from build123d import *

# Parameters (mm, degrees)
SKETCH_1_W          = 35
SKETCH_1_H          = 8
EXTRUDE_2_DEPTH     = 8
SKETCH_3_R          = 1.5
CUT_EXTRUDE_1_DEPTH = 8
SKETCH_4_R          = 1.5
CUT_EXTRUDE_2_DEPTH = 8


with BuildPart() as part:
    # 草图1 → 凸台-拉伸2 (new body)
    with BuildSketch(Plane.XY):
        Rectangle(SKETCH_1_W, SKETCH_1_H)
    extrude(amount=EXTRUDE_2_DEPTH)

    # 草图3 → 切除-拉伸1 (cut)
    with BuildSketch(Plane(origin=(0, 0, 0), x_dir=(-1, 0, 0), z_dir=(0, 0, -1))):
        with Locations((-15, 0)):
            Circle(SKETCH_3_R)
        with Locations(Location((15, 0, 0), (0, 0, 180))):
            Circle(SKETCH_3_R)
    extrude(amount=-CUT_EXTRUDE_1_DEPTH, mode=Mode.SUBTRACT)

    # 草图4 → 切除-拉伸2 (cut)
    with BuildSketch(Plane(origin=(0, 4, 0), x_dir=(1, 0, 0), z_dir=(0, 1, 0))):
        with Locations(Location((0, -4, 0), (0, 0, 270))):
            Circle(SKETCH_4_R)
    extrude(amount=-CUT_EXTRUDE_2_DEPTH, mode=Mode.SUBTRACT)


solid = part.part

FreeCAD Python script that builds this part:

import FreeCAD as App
import Part
import Sketcher


def add_polygon(sketch, points):
    """Adds a closed chain of lines whose ends are joined by coincident constraints."""
    first, n = sketch.GeometryCount, len(points)
    for a, b in zip(points, points[1:] + points[:1]):
        sketch.addGeometry(Part.LineSegment(App.Vector(*a, 0), App.Vector(*b, 0)), False)
    for i in range(n):
        sketch.addConstraint(Sketcher.Constraint("Coincident", first + i, 2, first + (i + 1) % n, 1))

doc = App.newDocument("Part")
body = doc.addObject("PartDesign::Body", "Body")

sketch1 = body.newObject("Sketcher::SketchObject", "Sketch")
sketch1.AttachmentSupport = (doc.getObject("XY_Plane"), [""])
sketch1.MapMode = "FlatFace"
add_polygon(sketch1, [(-18, 4), (-18, -4), (18, -4), (18, 4)])
sketch1.addConstraint([
    Sketcher.Constraint("Vertical", 0),
    Sketcher.Constraint("Horizontal", 1),
    Sketcher.Constraint("Vertical", 2),
    Sketcher.Constraint("Horizontal", 3),
    Sketcher.Constraint("Symmetric", 0, 2, 2, 2, -1, 1),
    Sketcher.Constraint("DistanceX", 1, 1, 1, 2, 35.0),
    Sketcher.Constraint("DistanceY", 0, 2, 0, 1, 8.0),
])
pad1 = body.newObject("PartDesign::Pad", "Pad")
pad1.Profile = sketch1
pad1.Length = 8

sketch2 = body.newObject("Sketcher::SketchObject", "Sketch001")
sketch2.AttachmentSupport = (doc.getObject("XY_Plane"), [""])
sketch2.MapMode = "FlatFace"
sketch2.addGeometry([
    Part.Circle(App.Vector(15, 0, 0), App.Vector(0, 0, 1), 1.5),
    Part.Circle(App.Vector(-15, 0, 0), App.Vector(0, 0, 1), 1.5),
], False)
sketch2.addConstraint([
    Sketcher.Constraint("Equal", 0, 1),
    Sketcher.Constraint("Symmetric", 0, 3, 1, 3, -1, 1),
    Sketcher.Constraint("PointOnObject", 0, 3, -1),
    Sketcher.Constraint("Diameter", 0, 3.0),
    Sketcher.Constraint("DistanceX", -1, 1, 0, 3, 15.0),
])
pocket1 = body.newObject("PartDesign::Pocket", "Pocket")
pocket1.Profile = sketch2
pocket1.Length = 8
pocket1.Reversed = True

sketch3 = body.newObject("Sketcher::SketchObject", "Sketch002")
sketch3.AttachmentSupport = (doc.getObject("XZ_Plane"), [""])
sketch3.MapMode = "FlatFace"
sketch3.AttachmentOffset = App.Placement(App.Vector(0, 0, -4), App.Rotation())
sketch3.addGeometry(Part.Circle(App.Vector(0, 4, 0), App.Vector(0, 0, 1), 1.5), False)
sketch3.addConstraint([
    Sketcher.Constraint("PointOnObject", 0, 3, -2),
    Sketcher.Constraint("Diameter", 0, 3.0),
    Sketcher.Constraint("DistanceY", -1, 1, 0, 3, 4.0),
])
pocket2 = body.newObject("PartDesign::Pocket", "Pocket001")
pocket2.Profile = sketch3
pocket2.Length = 8
pocket2.Reversed = True

doc.recompute()
